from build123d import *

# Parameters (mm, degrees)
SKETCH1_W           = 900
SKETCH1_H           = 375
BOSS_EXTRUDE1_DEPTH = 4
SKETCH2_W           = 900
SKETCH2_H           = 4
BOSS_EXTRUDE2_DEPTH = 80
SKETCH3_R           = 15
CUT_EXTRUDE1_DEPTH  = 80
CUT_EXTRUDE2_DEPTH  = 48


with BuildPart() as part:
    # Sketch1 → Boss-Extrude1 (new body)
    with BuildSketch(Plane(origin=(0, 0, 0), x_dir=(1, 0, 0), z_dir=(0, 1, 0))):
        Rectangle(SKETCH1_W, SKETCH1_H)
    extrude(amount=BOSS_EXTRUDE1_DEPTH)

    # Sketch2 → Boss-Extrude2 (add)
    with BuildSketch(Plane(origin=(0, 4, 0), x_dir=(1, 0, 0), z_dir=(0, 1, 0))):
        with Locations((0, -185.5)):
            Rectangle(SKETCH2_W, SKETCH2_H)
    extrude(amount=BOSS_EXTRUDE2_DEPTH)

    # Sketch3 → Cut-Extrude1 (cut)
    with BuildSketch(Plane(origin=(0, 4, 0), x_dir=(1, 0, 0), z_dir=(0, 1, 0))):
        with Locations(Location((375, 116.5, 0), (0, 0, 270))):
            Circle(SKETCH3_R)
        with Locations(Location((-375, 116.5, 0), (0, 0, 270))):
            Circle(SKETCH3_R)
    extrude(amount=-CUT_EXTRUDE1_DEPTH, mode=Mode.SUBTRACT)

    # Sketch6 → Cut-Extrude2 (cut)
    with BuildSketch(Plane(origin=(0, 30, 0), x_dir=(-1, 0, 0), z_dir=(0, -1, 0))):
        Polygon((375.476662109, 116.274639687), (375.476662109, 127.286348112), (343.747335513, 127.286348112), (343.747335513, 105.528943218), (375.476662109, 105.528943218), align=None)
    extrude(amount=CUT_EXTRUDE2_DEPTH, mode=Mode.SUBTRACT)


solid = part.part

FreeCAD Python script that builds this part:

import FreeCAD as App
import Part
import Sketcher

V = App.Vector

doc = App.newDocument("Part")
params = doc.addObject("Spreadsheet::Sheet", "Params")
for row, (alias, value) in enumerate([
    ("sketch1_width", "900 mm"),
    ("sketch1_height", "375 mm"),
    ("pad1_length", "4 mm"),
    ("sketch2_width", "900 mm"),
    ("sketch2_height", "4 mm"),
    ("pad2_length", "80 mm"),
    ("sketch3_diameter", "30 mm"),
    ("pocket1_length", "80 mm"),
    ("pocket2_length", "48 mm"),
], start=1):
    params.set(f"A{row}", alias)
    params.set(f"B{row}", "=" + value)
    params.setAlias(f"B{row}", alias)

body = doc.addObject("PartDesign::Body", "Body")

# Sketch on XZ plane
sketch1 = body.newObject("Sketcher::SketchObject", "Sketch")
sketch1.AttachmentSupport = (doc.getObject("XZ_Plane"), [""])
sketch1.MapMode = "FlatFace"
sketch1.addGeometry(Part.LineSegment(V(-450, -188, 0), V(-450, 188, 0)), False)
sketch1.addGeometry(Part.LineSegment(V(-450, 188, 0), V(450, 188, 0)), False)
sketch1.addGeometry(Part.LineSegment(V(450, 188, 0), V(450, -188, 0)), False)
sketch1.addGeometry(Part.LineSegment(V(450, -188, 0), V(-450, -188, 0)), False)
sketch1.addConstraint(Sketcher.Constraint("Coincident", 0, 2, 1, 1))
sketch1.addConstraint(Sketcher.Constraint("Coincident", 1, 2, 2, 1))
sketch1.addConstraint(Sketcher.Constraint("Coincident", 2, 2, 3, 1))
sketch1.addConstraint(Sketcher.Constraint("Coincident", 3, 2, 0, 1))
sketch1.addConstraint(Sketcher.Constraint("Vertical", 0))
sketch1.addConstraint(Sketcher.Constraint("Horizontal", 1))
sketch1.addConstraint(Sketcher.Constraint("Vertical", 2))
sketch1.addConstraint(Sketcher.Constraint("Horizontal", 3))
sketch1.addConstraint(Sketcher.Constraint("Symmetric", 0, 2, 2, 2, -1, 1))
sketch1.addConstraint(Sketcher.Constraint("DistanceX", 1, 1, 1, 2, 900.0))
sketch1.addConstraint(Sketcher.Constraint("DistanceY", 0, 1, 0, 2, 375.0))
sketch1.setExpression("Constraints[9]", "Params.sketch1_width")
sketch1.setExpression("Constraints[10]", "Params.sketch1_height")
pad1 = body.newObject("PartDesign::Pad", "Pad")
pad1.Profile = sketch1
pad1.setExpression("Length", "Params.pad1_length")
pad1.Reversed = True

# Sketch on XZ plane
sketch2 = body.newObject("Sketcher::SketchObject", "Sketch001")
sketch2.AttachmentSupport = (doc.getObject("XZ_Plane"), [""])
sketch2.MapMode = "FlatFace"
sketch2.AttachmentOffset = App.Placement(V(0, 0, -4), App.Rotation())
sketch2.addGeometry(Part.LineSegment(V(-450, 183.5, 0), V(-450, 187.5, 0)), False)
sketch2.addGeometry(Part.LineSegment(V(-450, 187.5, 0), V(450, 187.5, 0)), False)
sketch2.addGeometry(Part.LineSegment(V(450, 187.5, 0), V(450, 183.5, 0)), False)
sketch2.addGeometry(Part.LineSegment(V(450, 183.5, 0), V(-450, 183.5, 0)), False)
sketch2.addConstraint(Sketcher.Constraint("Coincident", 0, 2, 1, 1))
sketch2.addConstraint(Sketcher.Constraint("Coincident", 1, 2, 2, 1))
sketch2.addConstraint(Sketcher.Constraint("Coincident", 2, 2, 3, 1))
sketch2.addConstraint(Sketcher.Constraint("Coincident", 3, 2, 0, 1))
sketch2.addConstraint(Sketcher.Constraint("Vertical", 0))
sketch2.addConstraint(Sketcher.Constraint("Horizontal", 1))
sketch2.addConstraint(Sketcher.Constraint("Vertical", 2))
sketch2.addConstraint(Sketcher.Constraint("Horizontal", 3))
sketch2.addConstraint(Sketcher.Constraint("DistanceX", 1, 1, 1, 2, 900.0))
sketch2.addConstraint(Sketcher.Constraint("DistanceY", 0, 1, 0, 2, 4.0))
sketch2.addConstraint(Sketcher.Constraint("DistanceX", 0, 2, -1, 1, 450.0))
sketch2.addConstraint(Sketcher.Constraint("DistanceY", -1, 1, 0, 2, 187.5))
sketch2.setExpression("Constraints[8]", "Params.sketch2_width")
sketch2.setExpression("Constraints[9]", "Params.sketch2_height")
pad2 = body.newObject("PartDesign::Pad", "Pad001")
pad2.Profile = sketch2
pad2.setExpression("Length", "Params.pad2_length")
pad2.Reversed = True

# Sketch on XZ plane
sketch3 = body.newObject("Sketcher::SketchObject", "Sketch002")
sketch3.AttachmentSupport = (doc.getObject("XZ_Plane"), [""])
sketch3.MapMode = "FlatFace"
sketch3.AttachmentOffset = App.Placement(V(0, 0, -4), App.Rotation())
sketch3.addGeometry(Part.Circle(V(375, -116, 0), V(0, 0, 1), 15), False)
sketch3.addGeometry(Part.Circle(V(-375, -116, 0), V(0, 0, 1), 15), False)
sketch3.addConstraint(Sketcher.Constraint("Equal", 0, 1))
sketch3.addConstraint(Sketcher.Constraint("Symmetric", 0, 3, 1, 3, -2))
sketch3.addConstraint(Sketcher.Constraint("Diameter", 0, 30.0))
sketch3.addConstraint(Sketcher.Constraint("DistanceX", -1, 1, 0, 3, 375.0))
sketch3.addConstraint(Sketcher.Constraint("DistanceY", 0, 3, -1, 1, 116.5))
sketch3.setExpression("Constraints[2]", "Params.sketch3_diameter")
pocket1 = body.newObject("PartDesign::Pocket", "Pocket")
pocket1.Profile = sketch3
pocket1.setExpression("Length", "Params.pocket1_length")
pocket1.Reversed = True

# Sketch on XZ plane
sketch4 = body.newObject("Sketcher::SketchObject", "Sketch003")
sketch4.AttachmentSupport = (doc.getObject("XZ_Plane"), [""])
sketch4.MapMode = "FlatFace"
sketch4.AttachmentOffset = App.Placement(V(0, 0, -30), App.Rotation())
sketch4.addGeometry(Part.LineSegment(V(-375, -127, 0), V(-344, -127, 0)), False)
sketch4.addGeometry(Part.LineSegment(V(-344, -127, 0), V(-344, -106, 0)), False)
sketch4.addGeometry(Part.LineSegment(V(-344, -106, 0), V(-375, -106, 0)), False)
sketch4.addGeometry(Part.LineSegment(V(-375, -106, 0), V(-375, -127, 0)), False)
sketch4.addConstraint(Sketcher.Constraint("Coincident", 0, 2, 1, 1))
sketch4.addConstraint(Sketcher.Constraint("Coincident", 1, 2, 2, 1))
sketch4.addConstraint(Sketcher.Constraint("Coincident", 2, 2, 3, 1))
sketch4.addConstraint(Sketcher.Constraint("Coincident", 3, 2, 0, 1))
sketch4.addConstraint(Sketcher.Constraint("Horizontal", 0))
sketch4.addConstraint(Sketcher.Constraint("Vertical", 1))
sketch4.addConstraint(Sketcher.Constraint("Horizontal", 2))
sketch4.addConstraint(Sketcher.Constraint("Vertical", 3))
sketch4.addConstraint(Sketcher.Constraint("DistanceX", 0, 1, 0, 2, 31.729327))
sketch4.addConstraint(Sketcher.Constraint("DistanceY", 1, 1, 1, 2, 21.757405))
sketch4.addConstraint(Sketcher.Constraint("DistanceY", 0, 2, -1, 1, 127.286348))
sketch4.addConstraint(Sketcher.Constraint("DistanceX", 0, 2, -1, 1, 343.747336))
pocket2 = body.newObject("PartDesign::Pocket", "Pocket001")
pocket2.Profile = sketch4
pocket2.setExpression("Length", "Params.pocket2_length")
pocket2.Reversed = True

doc.recompute()
